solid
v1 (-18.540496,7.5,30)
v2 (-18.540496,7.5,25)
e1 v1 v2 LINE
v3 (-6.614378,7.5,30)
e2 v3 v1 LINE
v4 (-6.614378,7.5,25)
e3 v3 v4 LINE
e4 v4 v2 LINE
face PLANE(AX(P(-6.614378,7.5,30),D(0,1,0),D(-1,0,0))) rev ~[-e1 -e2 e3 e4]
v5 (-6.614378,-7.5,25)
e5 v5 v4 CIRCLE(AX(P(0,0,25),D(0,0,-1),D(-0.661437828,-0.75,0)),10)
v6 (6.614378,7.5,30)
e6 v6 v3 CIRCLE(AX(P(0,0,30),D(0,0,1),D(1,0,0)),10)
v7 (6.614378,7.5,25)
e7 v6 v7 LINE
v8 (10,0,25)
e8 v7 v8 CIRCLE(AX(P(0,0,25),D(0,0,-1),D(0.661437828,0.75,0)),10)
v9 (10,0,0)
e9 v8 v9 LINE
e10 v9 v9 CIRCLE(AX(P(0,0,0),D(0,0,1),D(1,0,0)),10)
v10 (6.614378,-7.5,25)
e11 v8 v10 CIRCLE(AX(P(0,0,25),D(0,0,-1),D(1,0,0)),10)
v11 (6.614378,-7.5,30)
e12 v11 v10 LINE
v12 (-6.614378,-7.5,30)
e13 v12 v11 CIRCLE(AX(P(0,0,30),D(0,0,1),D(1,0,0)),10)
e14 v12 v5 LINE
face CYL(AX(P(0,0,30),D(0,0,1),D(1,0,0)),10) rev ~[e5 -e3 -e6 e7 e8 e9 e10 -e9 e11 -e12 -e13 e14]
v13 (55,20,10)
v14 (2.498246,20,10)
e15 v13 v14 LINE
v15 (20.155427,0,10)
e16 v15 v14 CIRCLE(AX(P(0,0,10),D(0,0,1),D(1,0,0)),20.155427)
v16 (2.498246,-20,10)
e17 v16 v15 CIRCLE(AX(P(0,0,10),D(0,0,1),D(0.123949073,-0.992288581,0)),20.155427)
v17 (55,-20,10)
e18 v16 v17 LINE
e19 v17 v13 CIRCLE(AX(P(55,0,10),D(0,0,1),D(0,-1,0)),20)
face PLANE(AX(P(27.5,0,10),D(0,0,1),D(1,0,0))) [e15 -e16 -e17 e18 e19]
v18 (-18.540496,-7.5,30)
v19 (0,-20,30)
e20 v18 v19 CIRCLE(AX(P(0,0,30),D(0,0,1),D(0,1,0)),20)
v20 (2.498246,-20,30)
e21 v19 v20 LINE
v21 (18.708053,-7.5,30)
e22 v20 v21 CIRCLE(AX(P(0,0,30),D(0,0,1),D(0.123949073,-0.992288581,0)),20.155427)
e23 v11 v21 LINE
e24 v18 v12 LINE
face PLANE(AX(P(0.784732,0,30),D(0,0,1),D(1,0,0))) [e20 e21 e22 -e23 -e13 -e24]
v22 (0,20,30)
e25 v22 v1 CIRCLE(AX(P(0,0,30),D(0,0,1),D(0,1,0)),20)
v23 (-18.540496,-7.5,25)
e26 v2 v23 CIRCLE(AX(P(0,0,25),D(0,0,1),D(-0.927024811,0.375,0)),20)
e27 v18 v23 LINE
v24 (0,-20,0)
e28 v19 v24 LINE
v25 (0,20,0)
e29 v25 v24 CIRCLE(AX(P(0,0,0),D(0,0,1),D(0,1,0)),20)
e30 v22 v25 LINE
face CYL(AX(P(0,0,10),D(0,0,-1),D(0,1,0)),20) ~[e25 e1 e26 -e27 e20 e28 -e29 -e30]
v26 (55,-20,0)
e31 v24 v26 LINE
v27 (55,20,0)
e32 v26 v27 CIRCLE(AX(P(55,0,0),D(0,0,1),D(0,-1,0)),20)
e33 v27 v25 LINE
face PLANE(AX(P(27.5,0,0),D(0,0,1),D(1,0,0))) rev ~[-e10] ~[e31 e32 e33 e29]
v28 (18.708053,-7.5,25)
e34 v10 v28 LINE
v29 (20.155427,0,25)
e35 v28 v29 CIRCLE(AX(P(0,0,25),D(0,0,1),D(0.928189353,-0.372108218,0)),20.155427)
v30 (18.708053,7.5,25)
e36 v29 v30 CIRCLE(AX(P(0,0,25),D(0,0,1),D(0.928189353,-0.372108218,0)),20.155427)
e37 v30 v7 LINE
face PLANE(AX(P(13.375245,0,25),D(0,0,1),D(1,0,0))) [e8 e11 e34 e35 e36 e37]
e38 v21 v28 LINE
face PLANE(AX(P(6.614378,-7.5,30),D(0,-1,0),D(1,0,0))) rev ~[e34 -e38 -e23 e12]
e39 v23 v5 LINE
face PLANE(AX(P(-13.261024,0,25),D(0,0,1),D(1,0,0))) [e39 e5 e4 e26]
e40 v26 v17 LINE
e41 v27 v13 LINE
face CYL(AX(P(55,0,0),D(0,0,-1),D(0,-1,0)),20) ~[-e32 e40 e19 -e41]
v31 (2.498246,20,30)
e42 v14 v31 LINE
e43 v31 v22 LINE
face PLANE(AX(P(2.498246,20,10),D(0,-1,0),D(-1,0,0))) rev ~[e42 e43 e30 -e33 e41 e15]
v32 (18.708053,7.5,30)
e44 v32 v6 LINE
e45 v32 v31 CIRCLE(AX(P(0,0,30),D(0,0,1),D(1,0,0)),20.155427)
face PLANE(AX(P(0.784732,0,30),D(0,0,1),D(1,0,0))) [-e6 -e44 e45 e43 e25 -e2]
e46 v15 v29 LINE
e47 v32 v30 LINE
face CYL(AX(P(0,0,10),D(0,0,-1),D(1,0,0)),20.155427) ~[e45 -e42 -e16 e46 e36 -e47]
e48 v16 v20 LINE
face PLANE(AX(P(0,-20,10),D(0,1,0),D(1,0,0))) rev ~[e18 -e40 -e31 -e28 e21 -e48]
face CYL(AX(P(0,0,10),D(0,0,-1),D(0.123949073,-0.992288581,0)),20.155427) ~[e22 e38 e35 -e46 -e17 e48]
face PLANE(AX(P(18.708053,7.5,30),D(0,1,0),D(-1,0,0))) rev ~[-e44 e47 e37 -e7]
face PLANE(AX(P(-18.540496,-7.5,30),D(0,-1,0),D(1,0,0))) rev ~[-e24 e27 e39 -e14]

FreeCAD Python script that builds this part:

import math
import FreeCAD as App
import Part
import Sketcher

V = App.Vector

doc = App.newDocument("Part")
params = doc.addObject("Spreadsheet::Sheet", "Params")
for row, (alias, value) in enumerate([
    ("sketch1_radius", "20 mm"),
    ("sketch1_width", "55 mm"),
    ("pad1_length", "10 mm"),
    ("sketch2_radius", "20 mm"),
    ("pad2_length", "20 mm"),
    ("sketch3_diameter", "20 mm"),
    ("sketch4_radius", "20 mm"),
    ("sketch4_radius2", "10 mm"),
    ("pocket2_length", "5 mm"),
], start=1):
    params.set(f"A{row}", alias)
    params.set(f"B{row}", "=" + value)
    params.setAlias(f"B{row}", alias)

body = doc.addObject("PartDesign::Body", "Body")

sketch1 = doc.addObject("Sketcher::SketchObject", "Sketch")
body.addObject(sketch1)
sketch1.AttachmentSupport = (doc.XY_Plane, [""])
sketch1.MapMode = "FlatFace"
sketch1.addGeometry([
    Part.LineSegment(V(55, 20, 0), V(0, 20, 0)),
    Part.ArcOfCircle(Part.Circle(V(0, 0, 0), V(0, 0, 1), 20), math.radians(90), math.radians(270)),
    Part.LineSegment(V(0, -20, 0), V(55, -20, 0)),
    Part.ArcOfCircle(Part.Circle(V(55, 0, 0), V(0, 0, 1), 20), math.radians(-90), math.radians(90)),
], False)
sketch1.addConstraint([
    Sketcher.Constraint("Tangent", 0, 2, 1, 1),
    Sketcher.Constraint("Tangent", 1, 2, 2, 1),
    Sketcher.Constraint("Tangent", 2, 2, 3, 1),
    Sketcher.Constraint("Tangent", 3, 2, 0, 1),
    Sketcher.Constraint("Horizontal", 0),
    Sketcher.Constraint("Horizontal", 2),
    Sketcher.Constraint("Coincident", 1, 3, -1, 1),
    Sketcher.Constraint("Radius", 1, 20.0),
    Sketcher.Constraint("DistanceX", 0, 2, 0, 1, 55.0),
])
sketch1.setExpression("Constraints[7]", "Params.sketch1_radius")
sketch1.setExpression("Constraints[8]", "Params.sketch1_width")
pad1 = doc.addObject("PartDesign::Pad", "Pad")
body.addObject(pad1)
pad1.Profile = sketch1
pad1.setExpression("Length", "Params.pad1_length")

sketch2 = doc.addObject("Sketcher::SketchObject", "Sketch001")
body.addObject(sketch2)
sketch2.AttachmentSupport = (doc.XY_Plane, [""])
sketch2.MapMode = "FlatFace"
sketch2.AttachmentOffset = App.Placement(V(0, 0, 10), App.Rotation())
sketch2.addGeometry([
    Part.ArcOfCircle(Part.Circle(V(0, 0, 0), V(0, 0, 1), 20.2), math.radians(-83), math.radians(0)),
    Part.ArcOfCircle(Part.Circle(V(0, 0, 0), V(0, 0, 1), 20.2), math.radians(0), math.radians(83)),
    Part.LineSegment(V(2.5, 20, 0), V(0, 20, 0)),
    Part.ArcOfCircle(Part.Circle(V(0, 0, 0), V(0, 0, 1), 20), math.radians(90), math.radians(270)),
    Part.LineSegment(V(0, -20, 0), V(2.5, -20, 0)),
], False)
sketch2.addConstraint([
    Sketcher.Constraint("Tangent", 0, 2, 1, 1),
    Sketcher.Constraint("Coincident", 1, 2, 2, 1),
    Sketcher.Constraint("Tangent", 2, 2, 3, 1),
    Sketcher.Constraint("Tangent", 3, 2, 4, 1),
    Sketcher.Constraint("Coincident", 4, 2, 0, 1),
    Sketcher.Constraint("Horizontal", 2),
    Sketcher.Constraint("Horizontal", 4),
    Sketcher.Constraint("Coincident", 0, 3, -1, 1),
    Sketcher.Constraint("Coincident", 3, 3, -1, 1),
    Sketcher.Constraint("Equal", 0, 1),
    Sketcher.Constraint("PointOnObject", 0, 2, -1),
    Sketcher.Constraint("Radius", 3, 20.0),
    Sketcher.Constraint("Radius", 0, 20.155427),
])
sketch2.setExpression("Constraints[11]", "Params.sketch2_radius")
pad2 = doc.addObject("PartDesign::Pad", "Pad001")
body.addObject(pad2)
pad2.Profile = sketch2
pad2.setExpression("Length", "Params.pad2_length")

sketch3 = doc.addObject("Sketcher::SketchObject", "Sketch002")
body.addObject(sketch3)
sketch3.AttachmentSupport = (doc.XY_Plane, [""])
sketch3.MapMode = "FlatFace"
sketch3.AttachmentOffset = App.Placement(V(0, 0, 30), App.Rotation())
sketch3.addGeometry(Part.Circle(V(0, 0, 0), V(0, 0, 1), 10), False)
sketch3.addConstraint([
    Sketcher.Constraint("Coincident", 0, 3, -1, 1),
    Sketcher.Constraint("Diameter", 0, 20.0),
])
sketch3.setExpression("Constraints[1]", "Params.sketch3_diameter")
pocket1 = doc.addObject("PartDesign::Pocket", "Pocket")
body.addObject(pocket1)
pocket1.Profile = sketch3
pocket1.Type = "ThroughAll"

sketch4 = doc.addObject("Sketcher::SketchObject", "Sketch003")
body.addObject(sketch4)
sketch4.AttachmentSupport = (doc.XY_Plane, [""])
sketch4.MapMode = "FlatFace"
sketch4.AttachmentOffset = App.Placement(V(0, 0, 30), App.Rotation())
sketch4.addGeometry([
    Part.LineSegment(V(-7, 8, 0), V(-19, 8, 0)),
    Part.ArcOfCircle(Part.Circle(V(0, 0, 0), V(0, 0, 1), 20), math.radians(158), math.radians(202)),
    Part.LineSegment(V(-19, -8, 0), V(-7, -8, 0)),
    Part.ArcOfCircle(Part.Circle(V(0, 0, 0), V(0, 0, 1), 10), math.radians(131), math.radians(229)),
    Part.LineSegment(V(19, 8, 0), V(7, 8, 0)),
    Part.ArcOfCircle(Part.Circle(V(0, 0, 0), V(0, 0, 1), 10), math.radians(0), math.radians(49)),
    Part.ArcOfCircle(Part.Circle(V(0, 0, 0), V(0, 0, 1), 10), math.radians(-49), math.radians(0)),
    Part.LineSegment(V(7, -8, 0), V(19, -8, 0)),
    Part.ArcOfCircle(Part.Circle(V(0, 0, 0), V(0, 0, 1), 20), math.radians(-22), math.radians(22)),
], False)
sketch4.addConstraint([
    Sketcher.Constraint("Coincident", 0, 2, 1, 1),
    Sketcher.Constraint("Coincident", 1, 2, 2, 1),
    Sketcher.Constraint("Coincident", 2, 2, 3, 2),
    Sketcher.Constraint("Coincident", 3, 1, 0, 1),
    Sketcher.Constraint("Coincident", 4, 2, 5, 2),
    Sketcher.Constraint("Tangent", 5, 1, 6, 2),
    Sketcher.Constraint("Coincident", 6, 1, 7, 1),
    Sketcher.Constraint("Coincident", 7, 2, 8, 1),
    Sketcher.Constraint("Coincident", 8, 2, 4, 1),
    Sketcher.Constraint("Horizontal", 0),
    Sketcher.Constraint("Horizontal", 2),
    Sketcher.Constraint("Horizontal", 4),
    Sketcher.Constraint("Horizontal", 7),
    Sketcher.Constraint("Coincident", 1, 3, -1, 1),
    Sketcher.Constraint("Coincident", 3, 3, -1, 1),
    Sketcher.Constraint("Coincident", 5, 3, -1, 1),
    Sketcher.Constraint("Coincident", 8, 3, -1, 1),
    Sketcher.Constraint("Equal", 3, 5),
    Sketcher.Constraint("Equal", 5, 6),
    Sketcher.Constraint("PointOnObject", 5, 1, -1),
    Sketcher.Constraint("Horizontal", 3, 1, 4, 2),
    Sketcher.Constraint("Horizontal", 2, 2, 6, 1),
    Sketcher.Constraint("Vertical", 0, 2, 1, 2),
    Sketcher.Constraint("Radius", 1, 20.0),
    Sketcher.Constraint("Radius", 3, 10.0),
    Sketcher.Constraint("DistanceY", 1, 2, 0, 2, 15.0),
    Sketcher.Constraint("Radius", 8, 20.155427),
])
sketch4.setExpression("Constraints[23]", "Params.sketch4_radius")
sketch4.setExpression("Constraints[24]", "Params.sketch4_radius2")
pocket2 = doc.addObject("PartDesign::Pocket", "Pocket001")
body.addObject(pocket2)
pocket2.Profile = sketch4
pocket2.setExpression("Length", "Params.pocket2_length")

doc.recompute()
